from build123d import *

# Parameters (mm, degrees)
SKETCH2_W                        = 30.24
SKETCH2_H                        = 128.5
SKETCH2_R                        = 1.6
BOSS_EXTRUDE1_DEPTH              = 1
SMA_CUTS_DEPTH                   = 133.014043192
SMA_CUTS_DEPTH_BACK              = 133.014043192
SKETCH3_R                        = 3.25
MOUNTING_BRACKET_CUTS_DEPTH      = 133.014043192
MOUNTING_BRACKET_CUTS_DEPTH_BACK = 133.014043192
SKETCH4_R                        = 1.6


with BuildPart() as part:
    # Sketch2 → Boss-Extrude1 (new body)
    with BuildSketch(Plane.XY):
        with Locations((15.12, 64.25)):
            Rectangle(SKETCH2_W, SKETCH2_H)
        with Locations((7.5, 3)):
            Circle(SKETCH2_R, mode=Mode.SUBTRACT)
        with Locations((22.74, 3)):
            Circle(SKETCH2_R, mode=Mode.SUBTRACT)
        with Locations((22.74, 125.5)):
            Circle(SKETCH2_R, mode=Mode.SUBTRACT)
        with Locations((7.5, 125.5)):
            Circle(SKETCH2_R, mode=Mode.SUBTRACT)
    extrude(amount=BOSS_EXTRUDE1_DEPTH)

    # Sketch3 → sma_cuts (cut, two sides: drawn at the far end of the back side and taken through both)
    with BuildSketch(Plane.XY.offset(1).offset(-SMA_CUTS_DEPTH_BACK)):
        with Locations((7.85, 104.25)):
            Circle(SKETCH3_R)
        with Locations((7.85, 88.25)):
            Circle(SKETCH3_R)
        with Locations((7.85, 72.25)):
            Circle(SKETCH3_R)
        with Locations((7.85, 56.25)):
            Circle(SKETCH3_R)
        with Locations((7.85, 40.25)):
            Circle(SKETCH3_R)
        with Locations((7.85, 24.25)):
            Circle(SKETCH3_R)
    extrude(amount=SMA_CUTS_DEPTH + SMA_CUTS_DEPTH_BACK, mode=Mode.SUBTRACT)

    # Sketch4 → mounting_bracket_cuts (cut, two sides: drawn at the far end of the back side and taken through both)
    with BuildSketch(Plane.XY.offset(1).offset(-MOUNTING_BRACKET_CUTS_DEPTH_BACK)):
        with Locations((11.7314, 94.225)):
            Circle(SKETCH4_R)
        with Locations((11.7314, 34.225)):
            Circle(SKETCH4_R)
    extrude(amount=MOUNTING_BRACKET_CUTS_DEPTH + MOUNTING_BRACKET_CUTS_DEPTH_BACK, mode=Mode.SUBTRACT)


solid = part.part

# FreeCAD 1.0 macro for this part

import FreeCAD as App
import Part
import Sketcher

V = App.Vector
Q = App.Units.Quantity


def add_polygon(sketch, points):
    """Adds a closed chain of lines whose ends are joined by coincident constraints."""
    first, n = sketch.GeometryCount, len(points)
    for a, b in zip(points, points[1:] + points[:1]):
        sketch.addGeometry(Part.LineSegment(App.Vector(*a, 0), App.Vector(*b, 0)), False)
    for i in range(n):
        sketch.addConstraint(Sketcher.Constraint("Coincident", first + i, 2, first + (i + 1) % n, 1))

doc = App.newDocument("Part")
body = doc.addObject("PartDesign::Body", "Body")

# Sketch on XY plane
sketch1 = body.newObject("Sketcher::SketchObject", "Sketch")
sketch1.AttachmentSupport = (doc.getObject("XY_Plane"), [""])
sketch1.MapMode = "FlatFace"
add_polygon(sketch1, [(0, 128.5), (0, 0), (30.2, 0), (30.2, 128.5)])  # lines 0-3
sketch1.addGeometry(Part.Circle(V(7.5, 3, 0), V(0, 0, 1), 1.6), False)  # 4
sketch1.addGeometry(Part.Circle(V(22.7, 3, 0), V(0, 0, 1), 1.6), False)  # 5
sketch1.addGeometry(Part.Circle(V(7.5, 125.5, 0), V(0, 0, 1), 1.6), False)  # 6
sketch1.addGeometry(Part.Circle(V(22.7, 125.5, 0), V(0, 0, 1), 1.6), False)  # 7
sketch1.addConstraint(Sketcher.Constraint("Vertical", 0))
sketch1.addConstraint(Sketcher.Constraint("Horizontal", 1))
sketch1.addConstraint(Sketcher.Constraint("Vertical", 2))
sketch1.addConstraint(Sketcher.Constraint("Horizontal", 3))
sketch1.addConstraint(Sketcher.Constraint("Coincident", 0, 2, -1, 1))
sketch1.addConstraint(Sketcher.Constraint("Equal", 4, 5))
sketch1.addConstraint(Sketcher.Constraint("Equal", 5, 6))
sketch1.addConstraint(Sketcher.Constraint("Equal", 6, 7))
sketch1.addConstraint(Sketcher.Constraint("Horizontal", 4, 3, 5, 3))
sketch1.addConstraint(Sketcher.Constraint("Horizontal", 6, 3, 7, 3))
sketch1.addConstraint(Sketcher.Constraint("Vertical", 4, 3, 6, 3))
sketch1.addConstraint(Sketcher.Constraint("Vertical", 5, 3, 7, 3))
sketch1.addConstraint(Sketcher.Constraint("Diameter", 4, Q("3.2 mm")))
sketch1.addConstraint(Sketcher.Constraint("DistanceY", 0, 2, 0, 1, Q("128.5 mm")))
sketch1.addConstraint(Sketcher.Constraint("DistanceY", -1, 1, 4, 3, Q("3 mm")))
sketch1.addConstraint(Sketcher.Constraint("DistanceY", 7, 3, 2, 2, Q("3 mm")))
sketch1.addConstraint(Sketcher.Constraint("DistanceX", 1, 1, 1, 2, Q("30.24 mm")))
sketch1.addConstraint(Sketcher.Constraint("DistanceX", -1, 1, 4, 3, Q("7.5 mm")))
sketch1.addConstraint(Sketcher.Constraint("DistanceX", 5, 3, 1, 2, Q("7.5 mm")))
pad1 = body.newObject("PartDesign::Pad", "Pad")
pad1.Profile = sketch1
pad1.Length = 1

# Sketch on XY plane
sketch2 = body.newObject("Sketcher::SketchObject", "Sketch001")
sketch2.AttachmentSupport = (doc.getObject("XY_Plane"), [""])
sketch2.MapMode = "FlatFace"
sketch2.AttachmentOffset = App.Placement(V(0, 0, 1), App.Rotation())
sketch2.addGeometry(Part.Circle(V(7.8, 104.2, 0), V(0, 0, 1), 3.2), False)
sketch2.addGeometry(Part.Circle(V(7.8, 88.2, 0), V(0, 0, 1), 3.2), False)
sketch2.addGeometry(Part.Circle(V(7.8, 72.2, 0), V(0, 0, 1), 3.2), False)
sketch2.addGeometry(Part.Circle(V(7.8, 56.2, 0), V(0, 0, 1), 3.2), False)
sketch2.addGeometry(Part.Circle(V(7.8, 40.2, 0), V(0, 0, 1), 3.2), False)
sketch2.addGeometry(Part.Circle(V(7.8, 24.2, 0), V(0, 0, 1), 3.2), False)
sketch2.addConstraint(Sketcher.Constraint("Equal", 0, 1))
sketch2.addConstraint(Sketcher.Constraint("Equal", 1, 2))
sketch2.addConstraint(Sketcher.Constraint("Equal", 2, 3))
sketch2.addConstraint(Sketcher.Constraint("Equal", 3, 4))
sketch2.addConstraint(Sketcher.Constraint("Equal", 4, 5))
sketch2.addConstraint(Sketcher.Constraint("Vertical", 0, 3, 1, 3))
sketch2.addConstraint(Sketcher.Constraint("Vertical", 1, 3, 2, 3))
sketch2.addConstraint(Sketcher.Constraint("Vertical", 2, 3, 3, 3))
sketch2.addConstraint(Sketcher.Constraint("Vertical", 3, 3, 4, 3))
sketch2.addConstraint(Sketcher.Constraint("Vertical", 4, 3, 5, 3))
sketch2.addConstraint(Sketcher.Constraint("Diameter", 0, Q("6.5 mm")))
sketch2.addConstraint(Sketcher.Constraint("DistanceY", 1, 3, 0, 3, Q("16 mm")))
sketch2.addConstraint(Sketcher.Constraint("DistanceY", 2, 3, 1, 3, Q("16 mm")))
sketch2.addConstraint(Sketcher.Constraint("DistanceY", 3, 3, 2, 3, Q("16 mm")))
sketch2.addConstraint(Sketcher.Constraint("DistanceY", 4, 3, 3, 3, Q("16 mm")))
sketch2.addConstraint(Sketcher.Constraint("DistanceY", 5, 3, 4, 3, Q("16 mm")))
sketch2.addConstraint(Sketcher.Constraint("DistanceX", -1, 1, 0, 3, Q("7.85 mm")))
sketch2.addConstraint(Sketcher.Constraint("DistanceY", -1, 1, 0, 3, Q("104.25 mm")))
pocket1 = body.newObject("PartDesign::Pocket", "Pocket")
pocket1.Profile = sketch2
pocket1.Type = "ThroughAll"
pocket1.Midplane = True

# Sketch on XY plane
sketch3 = body.newObject("Sketcher::SketchObject", "Sketch002")
sketch3.AttachmentSupport = (doc.getObject("XY_Plane"), [""])
sketch3.MapMode = "FlatFace"
sketch3.AttachmentOffset = App.Placement(V(0, 0, 1), App.Rotation())
sketch3.addGeometry(Part.Circle(V(11.7, 94.2, 0), V(0, 0, 1), 1.6), False)
sketch3.addGeometry(Part.Circle(V(11.7, 34.2, 0), V(0, 0, 1), 1.6), False)
sketch3.addConstraint(Sketcher.Constraint("Equal", 0, 1))
sketch3.addConstraint(Sketcher.Constraint("Vertical", 0, 3, 1, 3))
sketch3.addConstraint(Sketcher.Constraint("Diameter", 0, Q("3.2 mm")))
sketch3.addConstraint(Sketcher.Constraint("DistanceY", 1, 3, 0, 3, Q("60 mm")))
sketch3.addConstraint(Sketcher.Constraint("DistanceY", -1, 1, 0, 3, Q("94.225 mm")))
sketch3.addConstraint(Sketcher.Constraint("DistanceX", -1, 1, 0, 3, Q("11.7314 mm")))
pocket2 = body.newObject("PartDesign::Pocket", "Pocket001")
pocket2.Profile = sketch3
pocket2.Type = "ThroughAll"
pocket2.Midplane = True

doc.recompute()
